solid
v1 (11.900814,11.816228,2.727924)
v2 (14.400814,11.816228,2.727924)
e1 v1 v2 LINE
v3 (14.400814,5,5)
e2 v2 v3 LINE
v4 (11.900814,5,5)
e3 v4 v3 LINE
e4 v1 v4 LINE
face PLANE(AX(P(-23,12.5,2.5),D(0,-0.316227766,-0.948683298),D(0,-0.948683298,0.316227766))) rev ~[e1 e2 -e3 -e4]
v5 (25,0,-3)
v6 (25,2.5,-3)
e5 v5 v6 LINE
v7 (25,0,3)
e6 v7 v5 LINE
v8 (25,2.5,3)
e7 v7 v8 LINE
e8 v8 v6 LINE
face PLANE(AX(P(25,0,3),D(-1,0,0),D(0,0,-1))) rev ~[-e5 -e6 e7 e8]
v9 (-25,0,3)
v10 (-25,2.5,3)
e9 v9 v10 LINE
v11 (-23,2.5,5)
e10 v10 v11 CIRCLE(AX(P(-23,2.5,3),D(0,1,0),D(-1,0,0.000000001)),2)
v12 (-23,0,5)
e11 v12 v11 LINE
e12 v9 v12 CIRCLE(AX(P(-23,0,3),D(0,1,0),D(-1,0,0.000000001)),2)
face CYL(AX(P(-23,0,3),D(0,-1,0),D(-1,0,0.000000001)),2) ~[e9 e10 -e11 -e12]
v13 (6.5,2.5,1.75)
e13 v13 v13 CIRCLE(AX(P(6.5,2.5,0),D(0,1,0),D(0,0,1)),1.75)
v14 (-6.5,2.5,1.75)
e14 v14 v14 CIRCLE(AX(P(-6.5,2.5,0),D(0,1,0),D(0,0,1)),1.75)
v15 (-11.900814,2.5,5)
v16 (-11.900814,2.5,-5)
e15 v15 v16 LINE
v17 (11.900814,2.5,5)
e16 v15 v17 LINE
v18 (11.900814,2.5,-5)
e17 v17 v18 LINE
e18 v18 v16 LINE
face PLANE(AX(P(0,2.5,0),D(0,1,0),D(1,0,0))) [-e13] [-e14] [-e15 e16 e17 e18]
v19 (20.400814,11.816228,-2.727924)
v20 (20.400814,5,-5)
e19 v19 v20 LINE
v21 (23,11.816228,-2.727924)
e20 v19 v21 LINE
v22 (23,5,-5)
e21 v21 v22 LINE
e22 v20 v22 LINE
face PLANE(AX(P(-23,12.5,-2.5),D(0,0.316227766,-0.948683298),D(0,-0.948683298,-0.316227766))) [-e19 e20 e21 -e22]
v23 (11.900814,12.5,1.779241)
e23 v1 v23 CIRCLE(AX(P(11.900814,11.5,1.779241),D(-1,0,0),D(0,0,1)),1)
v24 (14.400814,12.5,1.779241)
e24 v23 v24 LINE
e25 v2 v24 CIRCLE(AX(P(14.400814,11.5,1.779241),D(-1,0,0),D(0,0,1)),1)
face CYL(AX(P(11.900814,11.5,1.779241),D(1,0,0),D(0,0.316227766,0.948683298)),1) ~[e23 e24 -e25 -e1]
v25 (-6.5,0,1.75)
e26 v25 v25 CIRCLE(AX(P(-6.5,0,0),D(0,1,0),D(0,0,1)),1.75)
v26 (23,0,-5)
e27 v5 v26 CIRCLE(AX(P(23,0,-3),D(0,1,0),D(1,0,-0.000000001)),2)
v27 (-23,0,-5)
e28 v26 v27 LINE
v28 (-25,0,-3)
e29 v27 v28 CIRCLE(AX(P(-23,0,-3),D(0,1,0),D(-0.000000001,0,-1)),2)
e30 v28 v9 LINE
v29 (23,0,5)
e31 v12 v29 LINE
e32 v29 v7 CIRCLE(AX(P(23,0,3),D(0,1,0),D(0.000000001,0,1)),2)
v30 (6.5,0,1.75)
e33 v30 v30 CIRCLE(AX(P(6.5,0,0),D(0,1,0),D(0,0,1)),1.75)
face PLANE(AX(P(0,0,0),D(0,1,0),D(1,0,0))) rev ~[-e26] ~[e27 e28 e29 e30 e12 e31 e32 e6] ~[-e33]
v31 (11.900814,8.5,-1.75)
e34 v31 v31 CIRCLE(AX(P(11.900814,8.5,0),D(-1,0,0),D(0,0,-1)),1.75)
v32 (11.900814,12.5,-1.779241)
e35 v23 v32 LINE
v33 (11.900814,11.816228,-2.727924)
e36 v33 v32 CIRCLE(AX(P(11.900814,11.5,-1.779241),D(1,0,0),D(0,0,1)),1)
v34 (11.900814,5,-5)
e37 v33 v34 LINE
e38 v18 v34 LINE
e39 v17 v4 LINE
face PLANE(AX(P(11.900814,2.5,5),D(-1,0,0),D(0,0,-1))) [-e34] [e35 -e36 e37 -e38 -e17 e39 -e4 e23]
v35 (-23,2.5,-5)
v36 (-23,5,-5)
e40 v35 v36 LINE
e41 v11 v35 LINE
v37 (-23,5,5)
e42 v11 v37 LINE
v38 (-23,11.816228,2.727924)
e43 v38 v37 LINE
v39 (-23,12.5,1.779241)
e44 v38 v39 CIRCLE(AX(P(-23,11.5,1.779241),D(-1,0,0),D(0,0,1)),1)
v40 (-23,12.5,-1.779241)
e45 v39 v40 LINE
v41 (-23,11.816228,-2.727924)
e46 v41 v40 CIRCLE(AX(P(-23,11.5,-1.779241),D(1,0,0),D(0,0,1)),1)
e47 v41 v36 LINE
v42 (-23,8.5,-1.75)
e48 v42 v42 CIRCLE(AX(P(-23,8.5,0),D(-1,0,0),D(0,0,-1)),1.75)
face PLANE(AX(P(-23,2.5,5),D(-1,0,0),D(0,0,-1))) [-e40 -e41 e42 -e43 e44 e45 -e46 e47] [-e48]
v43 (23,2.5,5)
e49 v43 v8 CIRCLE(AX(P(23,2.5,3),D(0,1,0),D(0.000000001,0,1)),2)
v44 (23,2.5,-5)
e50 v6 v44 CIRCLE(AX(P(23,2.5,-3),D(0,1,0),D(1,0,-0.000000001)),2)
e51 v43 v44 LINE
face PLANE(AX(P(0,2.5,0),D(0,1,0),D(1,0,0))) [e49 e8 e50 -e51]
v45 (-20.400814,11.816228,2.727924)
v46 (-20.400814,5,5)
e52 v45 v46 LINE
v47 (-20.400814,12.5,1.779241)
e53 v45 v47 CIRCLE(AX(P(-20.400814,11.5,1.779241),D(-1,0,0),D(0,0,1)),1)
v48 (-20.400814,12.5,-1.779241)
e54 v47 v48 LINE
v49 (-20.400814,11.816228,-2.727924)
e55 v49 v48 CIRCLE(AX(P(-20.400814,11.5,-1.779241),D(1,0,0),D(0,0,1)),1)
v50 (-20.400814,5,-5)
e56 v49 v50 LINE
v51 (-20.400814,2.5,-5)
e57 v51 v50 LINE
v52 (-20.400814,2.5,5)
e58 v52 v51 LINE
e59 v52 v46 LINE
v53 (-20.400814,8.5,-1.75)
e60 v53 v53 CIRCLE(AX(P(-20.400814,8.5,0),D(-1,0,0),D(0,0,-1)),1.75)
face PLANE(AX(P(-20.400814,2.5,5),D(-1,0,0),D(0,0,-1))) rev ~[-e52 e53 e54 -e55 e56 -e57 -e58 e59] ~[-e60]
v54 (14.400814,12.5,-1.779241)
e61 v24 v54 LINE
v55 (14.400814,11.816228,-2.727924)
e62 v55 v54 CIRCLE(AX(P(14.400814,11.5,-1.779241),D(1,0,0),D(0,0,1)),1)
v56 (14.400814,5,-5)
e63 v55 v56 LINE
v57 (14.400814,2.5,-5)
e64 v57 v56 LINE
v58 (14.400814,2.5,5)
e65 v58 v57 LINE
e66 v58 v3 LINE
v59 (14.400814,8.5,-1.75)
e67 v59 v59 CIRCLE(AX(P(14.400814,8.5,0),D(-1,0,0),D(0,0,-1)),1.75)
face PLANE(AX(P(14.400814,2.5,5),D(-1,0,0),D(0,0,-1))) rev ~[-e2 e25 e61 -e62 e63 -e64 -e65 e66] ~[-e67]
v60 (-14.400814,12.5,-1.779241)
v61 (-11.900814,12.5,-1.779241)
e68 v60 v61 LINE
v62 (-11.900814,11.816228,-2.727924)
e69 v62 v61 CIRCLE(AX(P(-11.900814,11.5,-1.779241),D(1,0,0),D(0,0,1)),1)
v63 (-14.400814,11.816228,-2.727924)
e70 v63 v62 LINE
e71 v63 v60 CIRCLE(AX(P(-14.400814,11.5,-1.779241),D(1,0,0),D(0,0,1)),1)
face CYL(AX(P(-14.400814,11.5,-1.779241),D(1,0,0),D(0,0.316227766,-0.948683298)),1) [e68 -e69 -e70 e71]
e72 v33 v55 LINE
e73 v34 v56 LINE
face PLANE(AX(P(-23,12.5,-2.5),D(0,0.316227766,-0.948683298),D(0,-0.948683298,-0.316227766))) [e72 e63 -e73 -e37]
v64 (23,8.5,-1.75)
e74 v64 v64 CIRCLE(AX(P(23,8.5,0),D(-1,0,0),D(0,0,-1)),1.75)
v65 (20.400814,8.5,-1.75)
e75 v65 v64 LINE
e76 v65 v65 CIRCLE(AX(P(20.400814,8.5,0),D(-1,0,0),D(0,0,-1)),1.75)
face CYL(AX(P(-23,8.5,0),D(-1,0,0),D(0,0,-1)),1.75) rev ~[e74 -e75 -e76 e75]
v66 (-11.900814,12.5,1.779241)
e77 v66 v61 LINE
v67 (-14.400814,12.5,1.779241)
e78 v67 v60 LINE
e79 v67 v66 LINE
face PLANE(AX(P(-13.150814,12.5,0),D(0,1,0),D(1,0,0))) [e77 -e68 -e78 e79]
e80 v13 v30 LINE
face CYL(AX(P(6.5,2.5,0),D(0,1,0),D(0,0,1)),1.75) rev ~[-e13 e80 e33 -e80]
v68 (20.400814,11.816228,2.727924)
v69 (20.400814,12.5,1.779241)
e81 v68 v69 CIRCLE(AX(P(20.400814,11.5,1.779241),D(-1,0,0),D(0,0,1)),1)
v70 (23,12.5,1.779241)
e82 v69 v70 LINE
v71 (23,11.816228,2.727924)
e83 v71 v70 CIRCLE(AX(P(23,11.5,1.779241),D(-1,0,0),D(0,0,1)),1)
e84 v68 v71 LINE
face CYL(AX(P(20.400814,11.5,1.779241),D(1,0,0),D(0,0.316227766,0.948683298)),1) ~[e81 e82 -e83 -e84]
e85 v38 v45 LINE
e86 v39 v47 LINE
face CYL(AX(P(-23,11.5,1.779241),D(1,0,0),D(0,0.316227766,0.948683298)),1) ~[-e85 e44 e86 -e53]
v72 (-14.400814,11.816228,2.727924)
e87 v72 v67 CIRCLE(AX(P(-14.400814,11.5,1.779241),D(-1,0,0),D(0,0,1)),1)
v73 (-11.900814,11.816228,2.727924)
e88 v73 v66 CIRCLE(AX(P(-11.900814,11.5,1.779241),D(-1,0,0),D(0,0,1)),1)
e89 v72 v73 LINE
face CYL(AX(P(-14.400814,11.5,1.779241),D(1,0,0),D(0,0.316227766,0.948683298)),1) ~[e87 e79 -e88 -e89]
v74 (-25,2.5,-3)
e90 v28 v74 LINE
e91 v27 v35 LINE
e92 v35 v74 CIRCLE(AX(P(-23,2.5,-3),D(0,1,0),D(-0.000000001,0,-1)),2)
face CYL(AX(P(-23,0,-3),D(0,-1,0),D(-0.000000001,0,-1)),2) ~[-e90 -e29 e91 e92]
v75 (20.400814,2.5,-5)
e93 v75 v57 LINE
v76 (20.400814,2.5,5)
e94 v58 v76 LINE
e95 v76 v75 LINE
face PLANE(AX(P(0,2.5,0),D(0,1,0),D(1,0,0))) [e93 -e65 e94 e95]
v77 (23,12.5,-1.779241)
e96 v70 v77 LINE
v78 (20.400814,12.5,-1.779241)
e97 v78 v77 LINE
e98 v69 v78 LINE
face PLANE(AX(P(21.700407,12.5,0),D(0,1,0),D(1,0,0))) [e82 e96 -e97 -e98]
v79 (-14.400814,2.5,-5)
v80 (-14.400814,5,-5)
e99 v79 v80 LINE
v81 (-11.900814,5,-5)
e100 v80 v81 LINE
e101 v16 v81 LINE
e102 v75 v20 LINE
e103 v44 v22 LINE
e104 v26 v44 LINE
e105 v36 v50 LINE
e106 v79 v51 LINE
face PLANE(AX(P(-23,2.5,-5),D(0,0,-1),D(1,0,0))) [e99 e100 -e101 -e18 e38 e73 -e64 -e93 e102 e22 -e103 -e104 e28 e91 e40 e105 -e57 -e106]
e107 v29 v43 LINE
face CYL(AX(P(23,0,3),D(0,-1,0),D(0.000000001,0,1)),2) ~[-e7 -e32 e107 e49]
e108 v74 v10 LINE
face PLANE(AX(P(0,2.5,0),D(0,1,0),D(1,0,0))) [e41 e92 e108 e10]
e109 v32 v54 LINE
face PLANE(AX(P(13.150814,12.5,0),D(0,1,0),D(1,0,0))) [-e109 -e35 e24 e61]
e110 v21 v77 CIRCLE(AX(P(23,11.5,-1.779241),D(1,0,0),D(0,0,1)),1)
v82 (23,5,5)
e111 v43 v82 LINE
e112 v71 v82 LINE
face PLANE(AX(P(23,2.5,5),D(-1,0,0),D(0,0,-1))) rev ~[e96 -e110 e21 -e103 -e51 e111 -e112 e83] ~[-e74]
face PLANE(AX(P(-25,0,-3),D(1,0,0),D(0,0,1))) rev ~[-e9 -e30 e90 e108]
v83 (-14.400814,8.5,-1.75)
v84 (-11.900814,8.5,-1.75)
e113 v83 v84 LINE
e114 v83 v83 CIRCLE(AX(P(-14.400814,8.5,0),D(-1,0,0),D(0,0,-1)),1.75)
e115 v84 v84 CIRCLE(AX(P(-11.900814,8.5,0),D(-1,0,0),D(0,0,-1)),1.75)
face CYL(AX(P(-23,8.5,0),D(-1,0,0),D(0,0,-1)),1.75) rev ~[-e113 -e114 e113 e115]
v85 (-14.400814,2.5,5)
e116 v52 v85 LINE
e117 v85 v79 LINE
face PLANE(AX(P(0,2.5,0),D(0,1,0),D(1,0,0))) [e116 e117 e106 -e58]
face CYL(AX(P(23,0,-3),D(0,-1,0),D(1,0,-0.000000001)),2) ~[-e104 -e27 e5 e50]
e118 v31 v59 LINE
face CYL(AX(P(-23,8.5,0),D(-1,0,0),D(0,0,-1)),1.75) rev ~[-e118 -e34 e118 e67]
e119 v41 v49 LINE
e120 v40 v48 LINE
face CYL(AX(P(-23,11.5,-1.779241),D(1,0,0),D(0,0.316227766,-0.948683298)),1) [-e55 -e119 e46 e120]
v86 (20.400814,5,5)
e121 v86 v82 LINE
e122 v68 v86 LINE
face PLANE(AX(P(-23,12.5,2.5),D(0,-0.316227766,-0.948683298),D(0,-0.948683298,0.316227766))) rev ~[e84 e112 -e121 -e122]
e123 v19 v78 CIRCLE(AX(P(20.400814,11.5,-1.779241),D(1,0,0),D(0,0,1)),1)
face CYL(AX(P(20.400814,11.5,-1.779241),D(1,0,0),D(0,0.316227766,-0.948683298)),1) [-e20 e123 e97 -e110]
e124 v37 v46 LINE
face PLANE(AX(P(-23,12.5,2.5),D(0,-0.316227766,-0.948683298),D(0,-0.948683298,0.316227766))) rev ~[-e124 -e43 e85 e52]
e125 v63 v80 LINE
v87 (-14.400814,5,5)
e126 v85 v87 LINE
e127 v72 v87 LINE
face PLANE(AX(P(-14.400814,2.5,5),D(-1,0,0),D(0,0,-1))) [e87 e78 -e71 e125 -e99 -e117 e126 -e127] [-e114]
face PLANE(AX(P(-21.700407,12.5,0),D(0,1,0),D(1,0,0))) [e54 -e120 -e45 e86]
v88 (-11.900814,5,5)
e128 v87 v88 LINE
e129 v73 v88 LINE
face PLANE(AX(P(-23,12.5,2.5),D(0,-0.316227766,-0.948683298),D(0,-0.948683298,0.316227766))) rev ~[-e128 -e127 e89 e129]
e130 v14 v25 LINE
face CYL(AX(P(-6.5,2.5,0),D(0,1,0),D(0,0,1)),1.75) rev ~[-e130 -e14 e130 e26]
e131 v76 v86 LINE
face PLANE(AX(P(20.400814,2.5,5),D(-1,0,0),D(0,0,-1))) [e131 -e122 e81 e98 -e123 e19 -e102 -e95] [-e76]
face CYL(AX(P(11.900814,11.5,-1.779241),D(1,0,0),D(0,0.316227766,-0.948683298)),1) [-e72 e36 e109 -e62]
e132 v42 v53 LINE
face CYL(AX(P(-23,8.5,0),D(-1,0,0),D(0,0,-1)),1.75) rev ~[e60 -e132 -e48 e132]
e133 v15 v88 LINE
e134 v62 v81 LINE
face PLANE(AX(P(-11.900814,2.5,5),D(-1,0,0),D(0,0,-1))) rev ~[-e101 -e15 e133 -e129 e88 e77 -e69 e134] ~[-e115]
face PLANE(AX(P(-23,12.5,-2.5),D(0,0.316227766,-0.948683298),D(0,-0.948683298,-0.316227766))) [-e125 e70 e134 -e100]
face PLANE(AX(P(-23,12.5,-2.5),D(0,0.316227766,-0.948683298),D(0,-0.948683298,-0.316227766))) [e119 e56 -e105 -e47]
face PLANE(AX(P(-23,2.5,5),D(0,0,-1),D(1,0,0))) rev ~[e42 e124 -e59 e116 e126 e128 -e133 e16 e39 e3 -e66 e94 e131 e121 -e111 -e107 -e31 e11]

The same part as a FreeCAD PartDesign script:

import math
import FreeCAD as App
import Part
import Sketcher


def edges_at(feature, points):
    """Names of the edges that pass closest to the given points."""
    edges = feature.Shape.Edges
    near = lambda p: min(range(len(edges)), key=lambda i: edges[i].distToShape(Part.Vertex(*p))[0])
    return sorted({f"Edge{near(p) + 1}" for p in points})


def add_polygon(sketch, points):
    """Adds a closed chain of lines whose ends are joined by coincident constraints."""
    first, n = sketch.GeometryCount, len(points)
    for a, b in zip(points, points[1:] + points[:1]):
        sketch.addGeometry(Part.LineSegment(App.Vector(*a, 0), App.Vector(*b, 0)), False)
    for i in range(n):
        sketch.addConstraint(Sketcher.Constraint("Coincident", first + i, 2, first + (i + 1) % n, 1))

doc = App.newDocument("Part")
params = doc.addObject("Spreadsheet::Sheet", "Params")
for row, (alias, value) in enumerate([
    ("sketch1_radius", "2 mm"),
    ("sketch1_width", "46 mm"),
    ("sketch1_height", "6 mm"),
    ("pad1_length", "2.5 mm"),
    ("sketch2_height", "10 mm"),
    ("sketch2_width", "2.5 mm"),
    ("pad2_length", "10 mm"),
    ("sketch3_width", "7.5 mm"),
    ("sketch3_height", "2.5 mm"),
    ("pocket1_length", "59 mm"),
    ("sketch4_diameter", "3.5 mm"),
    ("pocket2_length", "59 mm"),
    ("fillet_radius", "1 mm"),
    ("sketch5_diameter", "3.5 mm"),
    ("pocket3_length", "59 mm"),
], start=1):
    params.set(f"A{row}", alias)
    params.set(f"B{row}", "=" + value)
    params.setAlias(f"B{row}", alias)

body = doc.addObject("PartDesign::Body", "Body")

# Sketch on XZ plane
sketch1 = doc.addObject("Sketcher::SketchObject", "Sketch")
body.addObject(sketch1)
sketch1.AttachmentSupport = (doc.XZ_Plane, [""])
sketch1.MapMode = "FlatFace"
sketch1.addGeometry([
    Part.LineSegment(App.Vector(-23, 5, 0), App.Vector(23, 5, 0)),  # 0
    Part.ArcOfCircle(Part.Circle(App.Vector(23, 3, 0), App.Vector(0, 0, 1), 2), math.radians(0), math.radians(90)),  # 1
    Part.LineSegment(App.Vector(25, 3, 0), App.Vector(25, -3, 0)),  # 2
    Part.ArcOfCircle(Part.Circle(App.Vector(23, -3, 0), App.Vector(0, 0, 1), 2), math.radians(-90), math.radians(0)),  # 3
    Part.LineSegment(App.Vector(23, -5, 0), App.Vector(-23, -5, 0)),  # 4
    Part.ArcOfCircle(Part.Circle(App.Vector(-23, -3, 0), App.Vector(0, 0, 1), 2), math.radians(-180), math.radians(-90)),  # 5
    Part.LineSegment(App.Vector(-25, -3, 0), App.Vector(-25, 3, 0)),  # 6
    Part.ArcOfCircle(Part.Circle(App.Vector(-23, 3, 0), App.Vector(0, 0, 1), 2), math.radians(90), math.radians(180)),  # 7
], False)
sketch1.addConstraint([
    Sketcher.Constraint("Tangent", 0, 2, 1, 2),
    Sketcher.Constraint("Tangent", 1, 1, 2, 1),
    Sketcher.Constraint("Tangent", 2, 2, 3, 2),
    Sketcher.Constraint("Tangent", 3, 1, 4, 1),
    Sketcher.Constraint("Tangent", 4, 2, 5, 2),
    Sketcher.Constraint("Tangent", 5, 1, 6, 1),
    Sketcher.Constraint("Tangent", 6, 2, 7, 2),
    Sketcher.Constraint("Tangent", 7, 1, 0, 1),
    Sketcher.Constraint("Horizontal", 0),
    Sketcher.Constraint("Vertical", 2),
    Sketcher.Constraint("Horizontal", 4),
    Sketcher.Constraint("Vertical", 6),
    Sketcher.Constraint("Equal", 1, 3),
    Sketcher.Constraint("Equal", 3, 5),
    Sketcher.Constraint("Equal", 5, 7),
    Sketcher.Constraint("Symmetric", 1, 3, 5, 3, -1, 1),
    Sketcher.Constraint("Radius", 1, 2.0),
    Sketcher.Constraint("DistanceX", 0, 1, 0, 2, 46.0),
    Sketcher.Constraint("DistanceY", 2, 2, 2, 1, 6.0),
])
sketch1.setExpression("Constraints[16]", "Params.sketch1_radius")
sketch1.setExpression("Constraints[17]", "Params.sketch1_width")
sketch1.setExpression("Constraints[18]", "Params.sketch1_height")
pad1 = doc.addObject("PartDesign::Pad", "Pad")
body.addObject(pad1)
pad1.Profile = sketch1
pad1.setExpression("Length", "Params.pad1_length")
pad1.Reversed = True

# Sketch on XZ plane
sketch2 = doc.addObject("Sketcher::SketchObject", "Sketch001")
body.addObject(sketch2)
sketch2.AttachmentSupport = (doc.XZ_Plane, [""])
sketch2.MapMode = "FlatFace"
sketch2.AttachmentOffset = App.Placement(App.Vector(0, 0, -2.5), App.Rotation())
add_polygon(sketch2, [(-23, -5), (-23, 5), (-20.400814, 5), (-20.400814, -5)])  # lines 0-3
add_polygon(sketch2, [(-14.400814, -5), (-14.400814, 5), (-11.900814, 5), (-11.900814, -5)])  # lines 4-7
add_polygon(sketch2, [(11.900814, -5), (11.900814, 5), (14.400814, 5), (14.400814, -5)])  # lines 8-11
add_polygon(sketch2, [(20.400814, -5), (20.400814, 5), (23, 5), (23, -5)])  # lines 12-15
sketch2.addConstraint([
    Sketcher.Constraint("Vertical", 0),
    Sketcher.Constraint("Horizontal", 1),
    Sketcher.Constraint("Vertical", 2),
    Sketcher.Constraint("Horizontal", 3),
    Sketcher.Constraint("Vertical", 4),
    Sketcher.Constraint("Horizontal", 5),
    Sketcher.Constraint("Vertical", 6),
    Sketcher.Constraint("Horizontal", 7),
    Sketcher.Constraint("Vertical", 8),
    Sketcher.Constraint("Horizontal", 9),
    Sketcher.Constraint("Vertical", 10),
    Sketcher.Constraint("Horizontal", 11),
    Sketcher.Constraint("Vertical", 12),
    Sketcher.Constraint("Horizontal", 13),
    Sketcher.Constraint("Vertical", 14),
    Sketcher.Constraint("Horizontal", 15),
    Sketcher.Constraint("Symmetric", 6, 2, 8, 2, -1, 1),
    Sketcher.Constraint("Symmetric", 4, 2, 10, 2, -1, 1),
    Sketcher.Constraint("Symmetric", 2, 2, 12, 2, -1, 1),
    Sketcher.Constraint("Symmetric", 0, 2, 14, 2, -1, 1),
    Sketcher.Constraint("Horizontal", 1, 2, 4, 2),
    Sketcher.Constraint("Horizontal", 3, 2, 6, 2),
    Sketcher.Constraint("Horizontal", 5, 2, 8, 2),
    Sketcher.Constraint("DistanceY", 0, 1, 0, 2, 10.0),
    Sketcher.Constraint("DistanceX", 5, 1, 5, 2, 2.5),
    Sketcher.Constraint("DistanceX", 0, 2, -1, 1, 23.0),
    Sketcher.Constraint("DistanceX", 1, 2, 4, 2, 6.0),
    Sketcher.Constraint("DistanceX", 1, 1, 1, 2, 2.599186),
])
sketch2.setExpression("Constraints[39]", "Params.sketch2_height")
sketch2.setExpression("Constraints[40]", "Params.sketch2_width")
pad2 = doc.addObject("PartDesign::Pad", "Pad001")
body.addObject(pad2)
pad2.Profile = sketch2
pad2.setExpression("Length", "Params.pad2_length")
pad2.Reversed = True

# Sketch on YZ plane
sketch3 = doc.addObject("Sketcher::SketchObject", "Sketch002")
body.addObject(sketch3)
sketch3.AttachmentSupport = (doc.YZ_Plane, [""])
sketch3.MapMode = "FlatFace"
sketch3.AttachmentOffset = App.Placement(App.Vector(0, 0, -23), App.Rotation())
add_polygon(sketch3, [(5, -5), (12.5, -2.5), (12.5, -5)])  # lines 0-2
add_polygon(sketch3, [(5, 5), (12.5, 5), (12.5, 2.5)])  # lines 3-5
sketch3.addConstraint([
    Sketcher.Constraint("Vertical", 1),
    Sketcher.Constraint("Horizontal", 2),
    Sketcher.Constraint("Horizontal", 3),
    Sketcher.Constraint("Vertical", 4),
    Sketcher.Constraint("Symmetric", 1, 2, 3, 2, -1),
    Sketcher.Constraint("Vertical", 2, 2, 5, 2),
    Sketcher.Constraint("Equal", 1, 4),
    Sketcher.Constraint("DistanceX", 2, 2, 2, 1, 7.5),
    Sketcher.Constraint("DistanceY", 1, 2, 1, 1, 2.5),
    Sketcher.Constraint("DistanceY", 1, 2, -1, 1, 5.0),
    Sketcher.Constraint("DistanceX", -1, 1, 2, 2, 5.0),
])
sketch3.setExpression("Constraints[13]", "Params.sketch3_width")
sketch3.setExpression("Constraints[14]", "Params.sketch3_height")
pocket1 = doc.addObject("PartDesign::Pocket", "Pocket")
body.addObject(pocket1)
pocket1.Profile = sketch3
pocket1.setExpression("Length", "Params.pocket1_length")
pocket1.Reversed = True

# Sketch on YZ plane
sketch4 = doc.addObject("Sketcher::SketchObject", "Sketch003")
body.addObject(sketch4)
sketch4.AttachmentSupport = (doc.YZ_Plane, [""])
sketch4.MapMode = "FlatFace"
sketch4.AttachmentOffset = App.Placement(App.Vector(0, 0, -23), App.Rotation())
sketch4.addGeometry(Part.Circle(App.Vector(8.5, 0, 0), App.Vector(0, 0, 1), 1.75), False)
sketch4.addConstraint([
    Sketcher.Constraint("PointOnObject", 0, 3, -1),
    Sketcher.Constraint("Diameter", 0, 3.5),
    Sketcher.Constraint("DistanceX", -1, 1, 0, 3, 8.5),
])
sketch4.setExpression("Constraints[1]", "Params.sketch4_diameter")
pocket2 = doc.addObject("PartDesign::Pocket", "Pocket001")
body.addObject(pocket2)
pocket2.Profile = sketch4
pocket2.setExpression("Length", "Params.pocket2_length")
pocket2.Reversed = True
doc.recompute()

fillet = doc.addObject("PartDesign::Fillet", "Fillet")
body.addObject(fillet)
fillet.Base = (pocket2, edges_at(pocket2, [
    (-13.151, 12.5, -2.5),
    (13.151, 12.5, -2.5),
    (-21.7, 12.5, -2.5),
    (-13.151, 12.5, 2.5),
    (13.151, 12.5, 2.5),
    (-21.7, 12.5, 2.5),
    (21.7, 12.5, 2.5),
    (21.7, 12.5, -2.5),
]))
fillet.setExpression("Radius", "Params.fillet_radius")

# Sketch on XZ plane
sketch5 = doc.addObject("Sketcher::SketchObject", "Sketch004")
body.addObject(sketch5)
sketch5.AttachmentSupport = (doc.XZ_Plane, [""])
sketch5.MapMode = "FlatFace"
sketch5.AttachmentOffset = App.Placement(App.Vector(0, 0, -2.5), App.Rotation())
sketch5.addGeometry([
    Part.Circle(App.Vector(-6.5, 0, 0), App.Vector(0, 0, 1), 1.75),
    Part.Circle(App.Vector(6.5, 0, 0), App.Vector(0, 0, 1), 1.75),
], False)
sketch5.addConstraint([
    Sketcher.Constraint("Equal", 0, 1),
    Sketcher.Constraint("Symmetric", 0, 3, 1, 3, -1, 1),
    Sketcher.Constraint("PointOnObject", 0, 3, -1),
    Sketcher.Constraint("Diameter", 0, 3.5),
    Sketcher.Constraint("DistanceX", 0, 3, 1, 3, 13.0),
])
sketch5.setExpression("Constraints[3]", "Params.sketch5_diameter")
pocket3 = doc.addObject("PartDesign::Pocket", "Pocket002")
body.addObject(pocket3)
pocket3.Profile = sketch5
pocket3.setExpression("Length", "Params.pocket3_length")
pocket3.Reversed = True

doc.recompute()
